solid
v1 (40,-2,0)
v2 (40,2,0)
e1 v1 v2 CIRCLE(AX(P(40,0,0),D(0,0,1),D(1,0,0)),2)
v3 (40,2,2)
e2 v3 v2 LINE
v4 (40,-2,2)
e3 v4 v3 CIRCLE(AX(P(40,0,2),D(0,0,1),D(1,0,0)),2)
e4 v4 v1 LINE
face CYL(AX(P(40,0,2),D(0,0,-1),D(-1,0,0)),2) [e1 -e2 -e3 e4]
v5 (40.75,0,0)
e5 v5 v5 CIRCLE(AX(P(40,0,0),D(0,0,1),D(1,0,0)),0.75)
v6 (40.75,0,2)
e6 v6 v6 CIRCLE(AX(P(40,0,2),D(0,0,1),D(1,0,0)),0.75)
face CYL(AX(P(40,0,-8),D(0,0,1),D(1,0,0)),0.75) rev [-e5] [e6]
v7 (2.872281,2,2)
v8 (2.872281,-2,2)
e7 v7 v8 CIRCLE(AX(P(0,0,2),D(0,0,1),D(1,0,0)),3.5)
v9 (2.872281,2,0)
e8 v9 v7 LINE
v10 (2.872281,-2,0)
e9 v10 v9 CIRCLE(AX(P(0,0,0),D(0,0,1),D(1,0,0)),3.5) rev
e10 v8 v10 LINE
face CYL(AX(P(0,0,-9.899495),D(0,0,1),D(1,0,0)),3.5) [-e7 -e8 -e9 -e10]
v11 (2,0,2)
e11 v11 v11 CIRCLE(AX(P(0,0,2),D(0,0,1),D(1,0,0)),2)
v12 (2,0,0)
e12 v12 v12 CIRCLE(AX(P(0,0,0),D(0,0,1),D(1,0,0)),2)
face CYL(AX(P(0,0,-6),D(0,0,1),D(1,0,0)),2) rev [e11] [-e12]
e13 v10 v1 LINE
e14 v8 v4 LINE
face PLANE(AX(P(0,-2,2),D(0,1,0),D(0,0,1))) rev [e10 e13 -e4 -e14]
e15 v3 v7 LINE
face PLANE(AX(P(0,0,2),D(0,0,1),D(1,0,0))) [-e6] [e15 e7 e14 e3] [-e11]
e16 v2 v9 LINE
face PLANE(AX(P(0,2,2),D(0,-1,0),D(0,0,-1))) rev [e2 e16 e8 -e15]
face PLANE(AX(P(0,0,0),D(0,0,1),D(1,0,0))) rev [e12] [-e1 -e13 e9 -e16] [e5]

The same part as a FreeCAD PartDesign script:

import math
import FreeCAD as App
import Part
import Sketcher

doc = App.newDocument("Part")
body = doc.addObject("PartDesign::Body", "Body")

# Sketch on XY plane
sketch1 = body.newObject("Sketcher::SketchObject", "Sketch")
sketch1.AttachmentSupport = (doc.getObject("XY_Plane"), [""])
sketch1.MapMode = "FlatFace"
sketch1.addGeometry([
    Part.LineSegment(App.Vector(0, -2, 0), App.Vector(40, -2, 0)),
    Part.ArcOfCircle(Part.Circle(App.Vector(40, 0, 0), App.Vector(0, 0, 1), 2), math.radians(-90), math.radians(90)),
    Part.LineSegment(App.Vector(40, 2, 0), App.Vector(0, 2, 0)),
    Part.ArcOfCircle(Part.Circle(App.Vector(0, 0, 0), App.Vector(0, 0, 1), 2), math.radians(90), math.radians(270)),
], False)
sketch1.addConstraint([
    Sketcher.Constraint("Tangent", 0, 2, 1, 1),
    Sketcher.Constraint("Tangent", 1, 2, 2, 1),
    Sketcher.Constraint("Tangent", 2, 2, 3, 1),
    Sketcher.Constraint("Tangent", 3, 2, 0, 1),
    Sketcher.Constraint("Horizontal", 0),
    Sketcher.Constraint("Horizontal", 2),
    Sketcher.Constraint("Coincident", 3, 3, -1, 1),
    Sketcher.Constraint("Radius", 1, 2.0),
    Sketcher.Constraint("DistanceX", 0, 1, 0, 2, 40.0),
])
pad1 = body.newObject("PartDesign::Pad", "Pad")
pad1.Profile = sketch1
pad1.Length = 2

# Sketch on XY plane
sketch2 = body.newObject("Sketcher::SketchObject", "Sketch001")
sketch2.AttachmentSupport = (doc.getObject("XY_Plane"), [""])
sketch2.MapMode = "FlatFace"
sketch2.AttachmentOffset = App.Placement(App.Vector(0, 0, 2), App.Rotation())
sketch2.addGeometry(Part.Circle(App.Vector(0, 0, 0), App.Vector(0, 0, 1), 2), False)
sketch2.addConstraint([
    Sketcher.Constraint("Coincident", 0, 3, -1, 1),
    Sketcher.Constraint("Diameter", 0, 4.0),
])
pad2 = body.newObject("PartDesign::Pad", "Pad001")
pad2.Profile = sketch2
pad2.Length = 8

# Sketch on XY plane
sketch3 = body.newObject("Sketcher::SketchObject", "Sketch002")
sketch3.AttachmentSupport = (doc.getObject("XY_Plane"), [""])
sketch3.MapMode = "FlatFace"
sketch3.AttachmentOffset = App.Placement(App.Vector(0, 0, 2), App.Rotation())
sketch3.addGeometry(Part.Circle(App.Vector(40, 0, 0), App.Vector(0, 0, 1), 0.8), False)
sketch3.addConstraint([
    Sketcher.Constraint("PointOnObject", 0, 3, -1),
    Sketcher.Constraint("Diameter", 0, 1.5),
    Sketcher.Constraint("DistanceX", -1, 1, 0, 3, 40.0),
])
pocket1 = body.newObject("PartDesign::Pocket", "Pocket")
pocket1.Profile = sketch3
pocket1.Length = 10

# Sketch on XY plane
sketch4 = body.newObject("Sketcher::SketchObject", "Sketch003")
sketch4.AttachmentSupport = (doc.getObject("XY_Plane"), [""])
sketch4.MapMode = "FlatFace"
sketch4.AttachmentOffset = App.Placement(App.Vector(0, 0, -6), App.Rotation())
sketch4.addGeometry(Part.Circle(App.Vector(0, 0, 0), App.Vector(0, 0, 1), 2), False)
sketch4.addConstraint([
    Sketcher.Constraint("Coincident", 0, 3, -1, 1),
    Sketcher.Constraint("Diameter", 0, 4.0),
])
pocket2 = body.newObject("PartDesign::Pocket", "Pocket001")
pocket2.Profile = sketch4
pocket2.Length = 16
pocket2.Reversed = True

# Sketch on XY plane
sketch5 = body.newObject("Sketcher::SketchObject", "Sketch004")
sketch5.AttachmentSupport = (doc.getObject("XY_Plane"), [""])
sketch5.MapMode = "FlatFace"
sketch5.addGeometry([
    Part.Circle(App.Vector(0, 0, 0), App.Vector(0, 0, 1), 3.5),
    Part.Circle(App.Vector(0, 0, 0), App.Vector(0, 0, 1), 2),
], False)
sketch5.addConstraint([
    Sketcher.Constraint("Coincident", 0, 3, -1, 1),
    Sketcher.Constraint("Coincident", 1, 3, -1, 1),
    Sketcher.Constraint("Diameter", 0, 7.0),
    Sketcher.Constraint("Diameter", 1, 4.0),
])
pad3 = body.newObject("PartDesign::Pad", "Pad002")
pad3.Profile = sketch5
pad3.Length = 2

doc.recompute()
